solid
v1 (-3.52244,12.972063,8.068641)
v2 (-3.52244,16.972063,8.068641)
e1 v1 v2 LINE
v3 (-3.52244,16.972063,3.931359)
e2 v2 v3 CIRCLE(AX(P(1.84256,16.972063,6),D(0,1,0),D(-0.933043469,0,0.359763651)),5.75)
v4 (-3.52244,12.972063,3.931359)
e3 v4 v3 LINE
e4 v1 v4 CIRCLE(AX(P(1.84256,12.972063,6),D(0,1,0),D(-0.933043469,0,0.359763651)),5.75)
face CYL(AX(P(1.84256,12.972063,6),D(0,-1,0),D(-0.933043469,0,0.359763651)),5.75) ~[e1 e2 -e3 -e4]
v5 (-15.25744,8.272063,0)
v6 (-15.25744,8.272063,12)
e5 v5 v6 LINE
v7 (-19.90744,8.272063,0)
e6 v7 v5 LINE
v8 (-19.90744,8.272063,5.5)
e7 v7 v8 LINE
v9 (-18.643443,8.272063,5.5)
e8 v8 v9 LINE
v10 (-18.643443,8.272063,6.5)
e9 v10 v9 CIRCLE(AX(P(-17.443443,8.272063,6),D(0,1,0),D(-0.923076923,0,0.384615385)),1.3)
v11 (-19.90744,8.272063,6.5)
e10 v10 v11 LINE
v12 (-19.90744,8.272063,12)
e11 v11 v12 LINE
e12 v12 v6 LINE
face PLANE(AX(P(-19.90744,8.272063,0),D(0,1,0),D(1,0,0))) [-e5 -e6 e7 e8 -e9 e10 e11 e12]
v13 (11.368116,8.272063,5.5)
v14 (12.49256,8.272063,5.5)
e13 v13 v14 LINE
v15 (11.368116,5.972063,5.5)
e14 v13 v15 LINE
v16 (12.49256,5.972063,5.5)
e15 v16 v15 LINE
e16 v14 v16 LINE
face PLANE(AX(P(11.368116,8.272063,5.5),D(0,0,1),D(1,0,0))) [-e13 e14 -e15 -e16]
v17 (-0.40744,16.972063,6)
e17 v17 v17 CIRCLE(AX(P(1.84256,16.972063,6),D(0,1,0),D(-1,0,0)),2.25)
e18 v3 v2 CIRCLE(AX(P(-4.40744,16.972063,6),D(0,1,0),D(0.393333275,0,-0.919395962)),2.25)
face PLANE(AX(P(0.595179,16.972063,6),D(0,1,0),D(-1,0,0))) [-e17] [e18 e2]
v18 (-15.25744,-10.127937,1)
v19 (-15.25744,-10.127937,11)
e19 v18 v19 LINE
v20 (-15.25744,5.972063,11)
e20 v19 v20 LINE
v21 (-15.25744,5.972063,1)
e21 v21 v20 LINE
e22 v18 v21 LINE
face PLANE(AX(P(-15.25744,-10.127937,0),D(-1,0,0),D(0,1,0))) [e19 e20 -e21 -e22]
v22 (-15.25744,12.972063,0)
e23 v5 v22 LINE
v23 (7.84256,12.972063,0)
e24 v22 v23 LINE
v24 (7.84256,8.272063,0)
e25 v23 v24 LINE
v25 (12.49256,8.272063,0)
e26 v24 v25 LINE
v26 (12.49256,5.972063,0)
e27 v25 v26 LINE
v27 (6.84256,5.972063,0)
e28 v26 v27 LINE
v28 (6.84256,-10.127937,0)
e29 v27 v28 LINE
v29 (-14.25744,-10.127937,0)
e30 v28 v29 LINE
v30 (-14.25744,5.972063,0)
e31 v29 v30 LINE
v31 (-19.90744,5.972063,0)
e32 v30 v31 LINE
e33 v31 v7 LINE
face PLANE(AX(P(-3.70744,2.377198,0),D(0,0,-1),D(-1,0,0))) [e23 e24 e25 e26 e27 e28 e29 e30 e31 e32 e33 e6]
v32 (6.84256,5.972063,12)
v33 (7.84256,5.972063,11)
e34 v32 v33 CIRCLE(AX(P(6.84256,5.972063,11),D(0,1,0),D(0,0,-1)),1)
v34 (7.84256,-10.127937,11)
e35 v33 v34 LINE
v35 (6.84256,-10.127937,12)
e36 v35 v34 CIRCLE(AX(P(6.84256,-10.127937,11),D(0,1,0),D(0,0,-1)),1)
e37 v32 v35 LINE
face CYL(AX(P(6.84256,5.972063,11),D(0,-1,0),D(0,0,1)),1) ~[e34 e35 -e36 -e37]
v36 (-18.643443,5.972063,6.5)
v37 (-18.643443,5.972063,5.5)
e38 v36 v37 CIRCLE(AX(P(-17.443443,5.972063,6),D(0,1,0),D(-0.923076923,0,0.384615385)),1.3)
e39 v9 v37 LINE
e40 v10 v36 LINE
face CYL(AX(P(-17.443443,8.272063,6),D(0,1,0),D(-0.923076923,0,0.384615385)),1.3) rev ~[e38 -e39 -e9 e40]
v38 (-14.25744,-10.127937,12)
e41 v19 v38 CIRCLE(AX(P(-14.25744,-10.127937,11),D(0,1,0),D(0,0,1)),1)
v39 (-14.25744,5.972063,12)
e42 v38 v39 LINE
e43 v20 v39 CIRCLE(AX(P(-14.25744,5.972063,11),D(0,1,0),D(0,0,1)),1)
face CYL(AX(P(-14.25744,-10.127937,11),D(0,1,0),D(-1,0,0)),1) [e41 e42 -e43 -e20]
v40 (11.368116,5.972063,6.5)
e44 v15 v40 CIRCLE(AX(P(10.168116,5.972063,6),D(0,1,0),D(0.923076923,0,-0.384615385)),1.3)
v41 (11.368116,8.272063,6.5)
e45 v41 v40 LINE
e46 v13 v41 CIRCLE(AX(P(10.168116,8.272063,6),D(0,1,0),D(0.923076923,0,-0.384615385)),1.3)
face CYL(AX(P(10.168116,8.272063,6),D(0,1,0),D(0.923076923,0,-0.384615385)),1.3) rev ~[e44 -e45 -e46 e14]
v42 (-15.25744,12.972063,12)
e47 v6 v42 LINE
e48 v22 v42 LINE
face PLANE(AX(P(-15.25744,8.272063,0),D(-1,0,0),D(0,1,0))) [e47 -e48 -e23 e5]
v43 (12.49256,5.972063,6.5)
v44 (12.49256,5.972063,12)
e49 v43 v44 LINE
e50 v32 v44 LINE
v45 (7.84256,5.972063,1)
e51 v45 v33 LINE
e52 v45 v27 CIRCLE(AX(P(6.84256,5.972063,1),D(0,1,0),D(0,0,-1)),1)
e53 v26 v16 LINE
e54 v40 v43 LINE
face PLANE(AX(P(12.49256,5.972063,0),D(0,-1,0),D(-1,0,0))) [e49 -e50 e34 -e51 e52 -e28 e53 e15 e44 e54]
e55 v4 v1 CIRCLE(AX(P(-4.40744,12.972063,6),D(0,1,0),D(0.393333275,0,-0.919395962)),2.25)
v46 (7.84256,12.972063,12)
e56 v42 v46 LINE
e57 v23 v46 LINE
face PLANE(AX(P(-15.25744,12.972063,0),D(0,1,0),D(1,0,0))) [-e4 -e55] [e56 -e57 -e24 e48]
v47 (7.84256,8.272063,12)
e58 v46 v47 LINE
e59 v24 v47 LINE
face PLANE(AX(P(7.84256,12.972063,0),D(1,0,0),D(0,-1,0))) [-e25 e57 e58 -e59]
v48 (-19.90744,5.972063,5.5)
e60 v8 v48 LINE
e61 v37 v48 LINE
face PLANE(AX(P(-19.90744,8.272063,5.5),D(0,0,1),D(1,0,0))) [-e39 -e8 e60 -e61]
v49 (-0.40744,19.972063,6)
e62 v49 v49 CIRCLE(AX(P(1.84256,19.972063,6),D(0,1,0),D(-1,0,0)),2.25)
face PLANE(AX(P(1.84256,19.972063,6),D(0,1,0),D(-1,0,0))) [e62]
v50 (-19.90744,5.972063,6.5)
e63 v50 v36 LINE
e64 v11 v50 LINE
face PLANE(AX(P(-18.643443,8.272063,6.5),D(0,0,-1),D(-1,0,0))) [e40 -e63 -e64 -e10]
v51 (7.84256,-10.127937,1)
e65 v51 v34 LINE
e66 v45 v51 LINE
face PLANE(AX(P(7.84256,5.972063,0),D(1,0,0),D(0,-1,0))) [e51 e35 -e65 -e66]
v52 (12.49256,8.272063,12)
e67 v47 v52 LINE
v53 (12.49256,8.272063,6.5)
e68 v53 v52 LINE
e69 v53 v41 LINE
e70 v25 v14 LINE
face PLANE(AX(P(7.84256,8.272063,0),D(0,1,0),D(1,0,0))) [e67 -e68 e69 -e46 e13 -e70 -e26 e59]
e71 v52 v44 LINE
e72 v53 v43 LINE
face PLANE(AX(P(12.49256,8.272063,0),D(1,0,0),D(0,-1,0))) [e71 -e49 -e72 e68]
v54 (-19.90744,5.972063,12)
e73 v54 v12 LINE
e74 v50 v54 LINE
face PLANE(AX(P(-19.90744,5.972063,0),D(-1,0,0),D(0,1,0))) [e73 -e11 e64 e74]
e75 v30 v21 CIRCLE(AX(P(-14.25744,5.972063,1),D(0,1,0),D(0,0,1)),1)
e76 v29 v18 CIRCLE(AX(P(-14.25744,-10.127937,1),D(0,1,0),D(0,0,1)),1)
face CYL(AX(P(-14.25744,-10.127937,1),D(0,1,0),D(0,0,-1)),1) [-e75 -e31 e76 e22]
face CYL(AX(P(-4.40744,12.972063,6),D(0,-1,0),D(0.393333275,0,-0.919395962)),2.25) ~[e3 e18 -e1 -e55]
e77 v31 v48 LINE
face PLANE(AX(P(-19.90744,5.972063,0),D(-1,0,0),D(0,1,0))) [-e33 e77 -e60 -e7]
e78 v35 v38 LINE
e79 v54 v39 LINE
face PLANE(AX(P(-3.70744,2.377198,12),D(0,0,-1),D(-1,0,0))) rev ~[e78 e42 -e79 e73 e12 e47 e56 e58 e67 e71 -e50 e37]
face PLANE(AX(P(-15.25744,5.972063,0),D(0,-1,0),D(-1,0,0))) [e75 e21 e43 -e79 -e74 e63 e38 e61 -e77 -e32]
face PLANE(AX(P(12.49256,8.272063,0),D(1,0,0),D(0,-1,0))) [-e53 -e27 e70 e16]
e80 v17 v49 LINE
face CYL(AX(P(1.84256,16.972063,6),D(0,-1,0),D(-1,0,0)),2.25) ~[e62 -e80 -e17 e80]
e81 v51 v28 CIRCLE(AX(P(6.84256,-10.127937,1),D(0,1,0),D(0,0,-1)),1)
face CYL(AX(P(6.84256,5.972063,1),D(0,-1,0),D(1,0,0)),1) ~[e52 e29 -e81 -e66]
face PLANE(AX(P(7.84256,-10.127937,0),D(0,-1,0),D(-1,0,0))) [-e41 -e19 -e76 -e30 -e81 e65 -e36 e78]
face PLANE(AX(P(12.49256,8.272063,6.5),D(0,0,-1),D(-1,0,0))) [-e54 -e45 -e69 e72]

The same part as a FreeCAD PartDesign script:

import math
import FreeCAD as App
import Part
import Sketcher

V = App.Vector


def edges_at(feature, points):
    """Names of the edges that pass closest to the given points."""
    edges = feature.Shape.Edges
    near = lambda p: min(range(len(edges)), key=lambda i: edges[i].distToShape(Part.Vertex(*p))[0])
    return sorted({f"Edge{near(p) + 1}" for p in points})


def add_polygon(sketch, points):
    """Adds a closed chain of lines whose ends are joined by coincident constraints."""
    first, n = sketch.GeometryCount, len(points)
    for a, b in zip(points, points[1:] + points[:1]):
        sketch.addGeometry(Part.LineSegment(App.Vector(*a, 0), App.Vector(*b, 0)), False)
    for i in range(n):
        sketch.addConstraint(Sketcher.Constraint("Coincident", first + i, 2, first + (i + 1) % n, 1))

doc = App.newDocument("Part")
params = doc.addObject("Spreadsheet::Sheet", "Params")
for row, (alias, value) in enumerate([
    ("sketch1_width", "23.1 mm"),
    ("sketch1_height", "4.7 mm"),
    ("sketch1_height2", "2.3 mm"),
    ("sketch1_height3", "16.1 mm"),
    ("sketch1_width2", "4.65 mm"),
    ("pad1_length", "12 mm"),
    ("fillet_radius", "1 mm"),
    ("fillet2_radius", "1 mm"),
    ("fillet3_radius", "1 mm"),
    ("fillet4_radius", "1 mm"),
    ("sketch2_radius", "1.3 mm"),
    ("sketch2_height", "1 mm"),
    ("pocket1_length", "5 mm"),
    ("sketch3_radius", "5.75 mm"),
    ("sketch3_radius2", "2.25 mm"),
    ("pad2_length", "4 mm"),
    ("sketch4_diameter", "4.5 mm"),
    ("pad3_length", "3 mm"),
    ("sketch5_radius", "1.3 mm"),
    ("sketch5_height", "1 mm"),
    ("pocket2_length", "5 mm"),
], start=1):
    params.set(f"A{row}", alias)
    params.set(f"B{row}", "=" + value)
    params.setAlias(f"B{row}", alias)

body = doc.addObject("PartDesign::Body", "Body")

# Sketch on XY plane
sketch1 = body.newObject("Sketcher::SketchObject", "Sketch")
sketch1.AttachmentSupport = (doc.getObject("XY_Plane"), [""])
sketch1.MapMode = "FlatFace"
add_polygon(sketch1, [(7.8, 13), (-15.3, 13), (-15.3, 8.3), (-19.9, 8.3), (-19.9, 6), (-15.3, 6), (-15.3, -10.1), (7.8, -10.1), (7.8, 6), (12.5, 6), (12.5, 8.3), (7.8, 8.3)])  # lines 0-11
sketch1.addConstraint([
    Sketcher.Constraint("Horizontal", 0),
    Sketcher.Constraint("Vertical", 1),
    Sketcher.Constraint("Horizontal", 2),
    Sketcher.Constraint("Vertical", 3),
    Sketcher.Constraint("Horizontal", 4),
    Sketcher.Constraint("Vertical", 5),
    Sketcher.Constraint("Horizontal", 6),
    Sketcher.Constraint("Vertical", 7),
    Sketcher.Constraint("Horizontal", 8),
    Sketcher.Constraint("Vertical", 9),
    Sketcher.Constraint("Horizontal", 10),
    Sketcher.Constraint("Vertical", 11),
    Sketcher.Constraint("Horizontal", 4, 2, 7, 2),
    Sketcher.Constraint("Horizontal", 2, 2, 9, 2),
    Sketcher.Constraint("Vertical", 1, 2, 4, 2),
    Sketcher.Constraint("Vertical", 7, 2, 10, 2),
    Sketcher.Constraint("Equal", 4, 8),
    Sketcher.Constraint("DistanceX", 0, 2, 0, 1, 23.1),
    Sketcher.Constraint("DistanceY", 1, 2, 1, 1, 4.7),
    Sketcher.Constraint("DistanceY", 3, 2, 3, 1, 2.3),
    Sketcher.Constraint("DistanceY", 5, 2, 5, 1, 16.1),
    Sketcher.Constraint("DistanceX", 2, 2, 2, 1, 4.65),
    Sketcher.Constraint("DistanceX", 0, 2, -1, 1, 15.25744),
    Sketcher.Constraint("DistanceY", -1, 1, 0, 2, 12.972063),
])
sketch1.setExpression("Constraints[29]", "Params.sketch1_width")
sketch1.setExpression("Constraints[30]", "Params.sketch1_height")
sketch1.setExpression("Constraints[31]", "Params.sketch1_height2")
sketch1.setExpression("Constraints[32]", "Params.sketch1_height3")
sketch1.setExpression("Constraints[33]", "Params.sketch1_width2")
pad1 = body.newObject("PartDesign::Pad", "Pad")
pad1.Profile = sketch1
pad1.setExpression("Length", "Params.pad1_length")
doc.recompute()

fillet = body.newObject("PartDesign::Fillet", "Fillet")
fillet.Base = (pad1, edges_at(pad1, [(-15.257, -2.078, 12)]))
fillet.setExpression("Radius", "Params.fillet_radius")
doc.recompute()

fillet2 = body.newObject("PartDesign::Fillet", "Fillet001")
fillet2.Base = (fillet, edges_at(fillet, [(-15.257, -2.078, 0)]))
fillet2.setExpression("Radius", "Params.fillet2_radius")
doc.recompute()

fillet3 = body.newObject("PartDesign::Fillet", "Fillet002")
fillet3.Base = (fillet2, edges_at(fillet2, [(7.843, -2.078, 0)]))
fillet3.setExpression("Radius", "Params.fillet3_radius")
doc.recompute()

fillet4 = body.newObject("PartDesign::Fillet", "Fillet003")
fillet4.Base = (fillet3, edges_at(fillet3, [(7.843, -2.078, 12)]))
fillet4.setExpression("Radius", "Params.fillet4_radius")

# Sketch on XZ plane
sketch2 = body.newObject("Sketcher::SketchObject", "Sketch001")
sketch2.AttachmentSupport = (doc.getObject("XZ_Plane"), [""])
sketch2.MapMode = "FlatFace"
sketch2.AttachmentOffset = App.Placement(V(0, 0, -8.272063), App.Rotation())
sketch2.addGeometry([
    Part.ArcOfCircle(Part.Circle(V(10.2, 6, 0), V(0, 0, 1), 1.3), math.radians(23), math.radians(337)),
    Part.LineSegment(V(11.4, 6.5, 0), V(12.5, 6.5, 0)),
    Part.LineSegment(V(12.5, 6.5, 0), V(12.5, 5.5, 0)),
    Part.LineSegment(V(12.5, 5.5, 0), V(11.4, 5.5, 0)),
], False)
sketch2.addConstraint([
    Sketcher.Constraint("Coincident", 0, 1, 1, 1),
    Sketcher.Constraint("Coincident", 1, 2, 2, 1),
    Sketcher.Constraint("Coincident", 2, 2, 3, 1),
    Sketcher.Constraint("Coincident", 3, 2, 0, 2),
    Sketcher.Constraint("Horizontal", 1),
    Sketcher.Constraint("Vertical", 2),
    Sketcher.Constraint("Horizontal", 3),
    Sketcher.Constraint("Vertical", 0, 1, 3, 2),
    Sketcher.Constraint("Radius", 0, 1.3),
    Sketcher.Constraint("DistanceY", 2, 2, 2, 1, 1.0),
    Sketcher.Constraint("DistanceY", -1, 1, 0, 3, 6.0),
    Sketcher.Constraint("DistanceX", 1, 1, 1, 2, 1.124444),
    Sketcher.Constraint("DistanceX", -1, 1, 1, 2, 12.49256),
])
sketch2.setExpression("Constraints[8]", "Params.sketch2_radius")
sketch2.setExpression("Constraints[9]", "Params.sketch2_height")
pocket1 = body.newObject("PartDesign::Pocket", "Pocket")
pocket1.Profile = sketch2
pocket1.setExpression("Length", "Params.pocket1_length")
pocket1.Reversed = True

# Sketch on XZ plane
sketch3 = body.newObject("Sketcher::SketchObject", "Sketch002")
sketch3.AttachmentSupport = (doc.getObject("XZ_Plane"), [""])
sketch3.MapMode = "FlatFace"
sketch3.AttachmentOffset = App.Placement(V(0, 0, -12.972063), App.Rotation())
sketch3.addGeometry([
    Part.ArcOfCircle(Part.Circle(V(1.8, 6, 0), V(0, 0, 1), 5.8), math.radians(-159), math.radians(159)),
    Part.ArcOfCircle(Part.Circle(V(-4.4, 6, 0), V(0, 0, 1), 2.3), math.radians(67), math.radians(293)),
], False)
sketch3.addConstraint([
    Sketcher.Constraint("Coincident", 0, 1, 1, 2),
    Sketcher.Constraint("Coincident", 1, 1, 0, 2),
    Sketcher.Constraint("Horizontal", 0, 3, 1, 3),
    Sketcher.Constraint("Radius", 0, 5.75),
    Sketcher.Constraint("Radius", 1, 2.25),
    Sketcher.Constraint("DistanceY", -1, 1, 0, 3, 6.0),
    Sketcher.Constraint("DistanceX", 1, 3, 0, 3, 6.25),
    Sketcher.Constraint("DistanceX", -1, 1, 0, 3, 1.84256),
])
sketch3.setExpression("Constraints[3]", "Params.sketch3_radius")
sketch3.setExpression("Constraints[4]", "Params.sketch3_radius2")
pad2 = body.newObject("PartDesign::Pad", "Pad001")
pad2.Profile = sketch3
pad2.setExpression("Length", "Params.pad2_length")
pad2.Reversed = True

# Sketch on XZ plane
sketch4 = body.newObject("Sketcher::SketchObject", "Sketch003")
sketch4.AttachmentSupport = (doc.getObject("XZ_Plane"), [""])
sketch4.MapMode = "FlatFace"
sketch4.AttachmentOffset = App.Placement(V(0, 0, -16.972063), App.Rotation())
sketch4.addGeometry(Part.Circle(V(1.8, 6, 0), V(0, 0, 1), 2.2), False)
sketch4.addConstraint([
    Sketcher.Constraint("Diameter", 0, 4.5),
    Sketcher.Constraint("DistanceY", -1, 1, 0, 3, 6.0),
    Sketcher.Constraint("DistanceX", -1, 1, 0, 3, 1.84256),
])
sketch4.setExpression("Constraints[0]", "Params.sketch4_diameter")
pad3 = body.newObject("PartDesign::Pad", "Pad002")
pad3.Profile = sketch4
pad3.setExpression("Length", "Params.pad3_length")
pad3.Reversed = True

# Sketch on XZ plane
sketch5 = body.newObject("Sketcher::SketchObject", "Sketch004")
sketch5.AttachmentSupport = (doc.getObject("XZ_Plane"), [""])
sketch5.MapMode = "FlatFace"
sketch5.AttachmentOffset = App.Placement(V(0, 0, -8.272063), App.Rotation())
sketch5.addGeometry([
    Part.ArcOfCircle(Part.Circle(V(-17.4, 6, 0), V(0, 0, 1), 1.3), math.radians(-157), math.radians(157)),
    Part.LineSegment(V(-18.6, 5.5, 0), V(-19.9, 5.5, 0)),
    Part.LineSegment(V(-19.9, 5.5, 0), V(-19.9, 6.5, 0)),
    Part.LineSegment(V(-19.9, 6.5, 0), V(-18.6, 6.5, 0)),
], False)
sketch5.addConstraint([
    Sketcher.Constraint("Coincident", 0, 1, 1, 1),
    Sketcher.Constraint("Coincident", 1, 2, 2, 1),
    Sketcher.Constraint("Coincident", 2, 2, 3, 1),
    Sketcher.Constraint("Coincident", 3, 2, 0, 2),
    Sketcher.Constraint("Horizontal", 1),
    Sketcher.Constraint("Vertical", 2),
    Sketcher.Constraint("Horizontal", 3),
    Sketcher.Constraint("Vertical", 0, 1, 3, 2),
    Sketcher.Constraint("Radius", 0, 1.3),
    Sketcher.Constraint("DistanceY", 2, 1, 2, 2, 1.0),
    Sketcher.Constraint("DistanceY", -1, 1, 0, 3, 6.0),
    Sketcher.Constraint("DistanceX", 1, 2, 1, 1, 1.263997),
    Sketcher.Constraint("DistanceX", 1, 2, -1, 1, 19.90744),
])
sketch5.setExpression("Constraints[8]", "Params.sketch5_radius")
sketch5.setExpression("Constraints[9]", "Params.sketch5_height")
pocket2 = body.newObject("PartDesign::Pocket", "Pocket001")
pocket2.Profile = sketch5
pocket2.setExpression("Length", "Params.pocket2_length")
pocket2.Reversed = True

doc.recompute()
